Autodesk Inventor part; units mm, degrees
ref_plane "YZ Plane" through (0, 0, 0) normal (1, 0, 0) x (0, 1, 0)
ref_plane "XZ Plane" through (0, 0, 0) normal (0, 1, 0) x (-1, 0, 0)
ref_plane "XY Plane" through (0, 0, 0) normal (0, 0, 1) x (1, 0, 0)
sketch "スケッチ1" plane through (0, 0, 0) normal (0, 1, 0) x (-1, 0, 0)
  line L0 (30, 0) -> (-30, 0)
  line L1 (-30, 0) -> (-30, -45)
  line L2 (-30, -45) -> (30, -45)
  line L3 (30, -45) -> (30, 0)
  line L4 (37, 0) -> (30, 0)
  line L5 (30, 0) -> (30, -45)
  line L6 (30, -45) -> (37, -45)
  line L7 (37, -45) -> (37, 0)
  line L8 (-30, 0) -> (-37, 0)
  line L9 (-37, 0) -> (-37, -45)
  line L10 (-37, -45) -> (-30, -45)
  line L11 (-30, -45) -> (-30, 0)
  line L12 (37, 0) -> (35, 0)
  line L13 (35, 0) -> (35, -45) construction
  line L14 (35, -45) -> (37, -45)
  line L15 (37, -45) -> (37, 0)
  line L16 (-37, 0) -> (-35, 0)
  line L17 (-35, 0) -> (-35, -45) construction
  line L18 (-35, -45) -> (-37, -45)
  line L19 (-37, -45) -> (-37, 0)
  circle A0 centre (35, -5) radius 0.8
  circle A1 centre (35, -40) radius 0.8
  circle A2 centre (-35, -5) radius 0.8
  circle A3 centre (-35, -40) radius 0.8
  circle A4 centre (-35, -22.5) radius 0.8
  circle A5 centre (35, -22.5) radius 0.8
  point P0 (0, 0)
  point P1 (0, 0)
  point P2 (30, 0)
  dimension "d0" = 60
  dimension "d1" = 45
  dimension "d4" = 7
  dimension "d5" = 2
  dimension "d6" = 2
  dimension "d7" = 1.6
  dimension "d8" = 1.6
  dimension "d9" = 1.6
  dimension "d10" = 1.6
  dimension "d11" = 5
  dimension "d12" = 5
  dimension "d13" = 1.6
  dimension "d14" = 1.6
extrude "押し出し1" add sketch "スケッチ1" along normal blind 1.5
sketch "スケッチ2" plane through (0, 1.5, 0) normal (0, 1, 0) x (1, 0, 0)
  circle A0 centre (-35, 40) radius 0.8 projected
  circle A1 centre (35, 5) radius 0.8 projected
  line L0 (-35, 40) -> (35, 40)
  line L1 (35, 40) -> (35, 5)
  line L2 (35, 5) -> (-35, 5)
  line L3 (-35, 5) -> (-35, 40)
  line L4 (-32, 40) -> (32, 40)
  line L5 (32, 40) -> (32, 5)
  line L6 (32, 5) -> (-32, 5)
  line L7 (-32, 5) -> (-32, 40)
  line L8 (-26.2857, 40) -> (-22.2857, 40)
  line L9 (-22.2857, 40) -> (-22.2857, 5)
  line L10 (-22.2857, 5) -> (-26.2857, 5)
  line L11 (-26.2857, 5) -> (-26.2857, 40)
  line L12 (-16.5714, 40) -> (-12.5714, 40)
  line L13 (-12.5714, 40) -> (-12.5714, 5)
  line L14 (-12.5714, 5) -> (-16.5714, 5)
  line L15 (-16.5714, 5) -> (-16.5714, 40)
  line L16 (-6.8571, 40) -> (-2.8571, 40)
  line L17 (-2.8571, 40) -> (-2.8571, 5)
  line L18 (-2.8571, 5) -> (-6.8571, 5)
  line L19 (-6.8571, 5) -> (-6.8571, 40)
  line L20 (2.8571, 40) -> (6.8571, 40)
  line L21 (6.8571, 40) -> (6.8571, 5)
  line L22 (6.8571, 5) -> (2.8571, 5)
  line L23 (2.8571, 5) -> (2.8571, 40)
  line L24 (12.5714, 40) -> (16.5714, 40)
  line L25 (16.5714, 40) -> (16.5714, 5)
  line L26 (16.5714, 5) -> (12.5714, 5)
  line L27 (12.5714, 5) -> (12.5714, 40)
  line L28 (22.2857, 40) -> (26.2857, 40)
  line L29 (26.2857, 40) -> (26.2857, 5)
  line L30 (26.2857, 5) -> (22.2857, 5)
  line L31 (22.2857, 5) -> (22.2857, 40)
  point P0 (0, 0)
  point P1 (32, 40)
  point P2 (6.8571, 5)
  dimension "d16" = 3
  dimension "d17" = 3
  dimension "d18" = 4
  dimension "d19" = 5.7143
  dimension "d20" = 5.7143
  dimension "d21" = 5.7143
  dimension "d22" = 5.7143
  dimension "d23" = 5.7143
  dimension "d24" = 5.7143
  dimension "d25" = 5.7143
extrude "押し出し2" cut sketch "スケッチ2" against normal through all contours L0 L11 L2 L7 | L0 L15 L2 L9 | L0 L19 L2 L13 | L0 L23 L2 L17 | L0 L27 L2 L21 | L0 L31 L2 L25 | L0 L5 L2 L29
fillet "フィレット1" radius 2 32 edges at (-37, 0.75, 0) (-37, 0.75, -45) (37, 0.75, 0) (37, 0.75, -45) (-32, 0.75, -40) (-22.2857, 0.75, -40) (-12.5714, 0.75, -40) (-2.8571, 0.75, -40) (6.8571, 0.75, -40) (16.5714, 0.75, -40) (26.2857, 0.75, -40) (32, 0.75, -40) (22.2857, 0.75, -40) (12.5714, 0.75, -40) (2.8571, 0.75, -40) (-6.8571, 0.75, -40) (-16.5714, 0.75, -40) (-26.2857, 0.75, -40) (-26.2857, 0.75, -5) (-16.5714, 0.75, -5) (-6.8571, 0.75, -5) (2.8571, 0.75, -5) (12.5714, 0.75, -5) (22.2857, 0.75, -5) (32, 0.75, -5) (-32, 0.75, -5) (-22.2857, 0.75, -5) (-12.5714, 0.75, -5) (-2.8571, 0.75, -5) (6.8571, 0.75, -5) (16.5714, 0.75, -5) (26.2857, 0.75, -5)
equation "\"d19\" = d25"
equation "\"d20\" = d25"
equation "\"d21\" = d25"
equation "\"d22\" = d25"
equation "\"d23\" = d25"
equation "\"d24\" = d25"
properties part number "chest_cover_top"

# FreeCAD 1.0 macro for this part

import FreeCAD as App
import Part
import Sketcher


def edges_at(feature, points):
    """Names of the edges that pass closest to the given points."""
    edges = feature.Shape.Edges
    near = lambda p: min(range(len(edges)), key=lambda i: edges[i].distToShape(Part.Vertex(*p))[0])
    return sorted({f"Edge{near(p) + 1}" for p in points})

doc = App.newDocument("Part")
body = doc.addObject("PartDesign::Body", "Body")

# Sketch on XZ plane
sketch1 = body.newObject("Sketcher::SketchObject", "Sketch")
sketch1.AttachmentSupport = (doc.getObject("XZ_Plane"), [""])
sketch1.MapMode = "FlatFace"
sketch1.addGeometry([
    Part.LineSegment(App.Vector(-37, -45, 0), App.Vector(-37, 0, 0)),  # 0
    Part.LineSegment(App.Vector(-37, 0, 0), App.Vector(37, 0, 0)),  # 1
    Part.LineSegment(App.Vector(37, 0, 0), App.Vector(37, -45, 0)),  # 2
    Part.LineSegment(App.Vector(37, -45, 0), App.Vector(-37, -45, 0)),  # 3
    Part.Circle(App.Vector(-35, -5, 0), App.Vector(0, 0, 1), 0.8),  # 4
    Part.Circle(App.Vector(-35, -40, 0), App.Vector(0, 0, 1), 0.8),  # 5
    Part.Circle(App.Vector(-35, -22.5, 0), App.Vector(0, 0, 1), 0.8),  # 6
    Part.Circle(App.Vector(35, -5, 0), App.Vector(0, 0, 1), 0.8),  # 7
    Part.Circle(App.Vector(35, -40, 0), App.Vector(0, 0, 1), 0.8),  # 8
    Part.Circle(App.Vector(35, -22.5, 0), App.Vector(0, 0, 1), 0.8),  # 9
], False)
sketch1.addConstraint([
    Sketcher.Constraint("Coincident", 0, 2, 1, 1),
    Sketcher.Constraint("Coincident", 1, 2, 2, 1),
    Sketcher.Constraint("Coincident", 2, 2, 3, 1),
    Sketcher.Constraint("Coincident", 3, 2, 0, 1),
    Sketcher.Constraint("Vertical", 0),
    Sketcher.Constraint("Horizontal", 1),
    Sketcher.Constraint("Vertical", 2),
    Sketcher.Constraint("Horizontal", 3),
    Sketcher.Constraint("Equal", 4, 5),
    Sketcher.Constraint("Equal", 5, 6),
    Sketcher.Constraint("Equal", 6, 7),
    Sketcher.Constraint("Equal", 7, 8),
    Sketcher.Constraint("Equal", 8, 9),
    Sketcher.Constraint("Symmetric", 0, 2, 1, 2, -1, 1),
    Sketcher.Constraint("Symmetric", 4, 3, 7, 3, -2),
    Sketcher.Constraint("Symmetric", 5, 3, 8, 3, -2),
    Sketcher.Constraint("Symmetric", 6, 3, 9, 3, -2),
    Sketcher.Constraint("Vertical", 4, 3, 5, 3),
    Sketcher.Constraint("Vertical", 5, 3, 6, 3),
    Sketcher.Constraint("Diameter", 4, 1.6),
    Sketcher.Constraint("DistanceY", 0, 1, 0, 2, 45.0),
    Sketcher.Constraint("DistanceY", 4, 3, -1, 1, 5.0),
    Sketcher.Constraint("DistanceX", 0, 2, 4, 3, 2.0),
    Sketcher.Constraint("DistanceY", 2, 2, 8, 3, 5.0),
    Sketcher.Constraint("DistanceX", 1, 1, 1, 2, 74.0),
    Sketcher.Constraint("DistanceY", 6, 3, -1, 1, 22.5),
])
pad1 = body.newObject("PartDesign::Pad", "Pad")
pad1.Profile = sketch1
pad1.Length = 1.5
pad1.Reversed = True

# Sketch on XZ plane
sketch2 = body.newObject("Sketcher::SketchObject", "Sketch001")
sketch2.AttachmentSupport = (doc.getObject("XZ_Plane"), [""])
sketch2.MapMode = "FlatFace"
sketch2.AttachmentOffset = App.Placement(App.Vector(0, 0, -1.5), App.Rotation())
sketch2.addGeometry([
    Part.LineSegment(App.Vector(-26.2857, -40, 0), App.Vector(-32, -40, 0)),  # 0
    Part.LineSegment(App.Vector(-32, -40, 0), App.Vector(-32, -5, 0)),  # 1
    Part.LineSegment(App.Vector(-32, -5, 0), App.Vector(-26.2857, -5, 0)),  # 2
    Part.LineSegment(App.Vector(-26.2857, -5, 0), App.Vector(-26.2857, -40, 0)),  # 3
    Part.LineSegment(App.Vector(-16.5714, -40, 0), App.Vector(-22.2857, -40, 0)),  # 4
    Part.LineSegment(App.Vector(-22.2857, -40, 0), App.Vector(-22.2857, -5, 0)),  # 5
    Part.LineSegment(App.Vector(-22.2857, -5, 0), App.Vector(-16.5714, -5, 0)),  # 6
    Part.LineSegment(App.Vector(-16.5714, -5, 0), App.Vector(-16.5714, -40, 0)),  # 7
    Part.LineSegment(App.Vector(-6.8571, -40, 0), App.Vector(-12.5714, -40, 0)),  # 8
    Part.LineSegment(App.Vector(-12.5714, -40, 0), App.Vector(-12.5714, -5, 0)),  # 9
    Part.LineSegment(App.Vector(-12.5714, -5, 0), App.Vector(-6.8571, -5, 0)),  # 10
    Part.LineSegment(App.Vector(-6.8571, -5, 0), App.Vector(-6.8571, -40, 0)),  # 11
    Part.LineSegment(App.Vector(2.8571, -40, 0), App.Vector(-2.8571, -40, 0)),  # 12
    Part.LineSegment(App.Vector(-2.8571, -40, 0), App.Vector(-2.8571, -5, 0)),  # 13
    Part.LineSegment(App.Vector(-2.8571, -5, 0), App.Vector(2.8571, -5, 0)),  # 14
    Part.LineSegment(App.Vector(2.8571, -5, 0), App.Vector(2.8571, -40, 0)),  # 15
    Part.LineSegment(App.Vector(12.5714, -40, 0), App.Vector(6.8571, -40, 0)),  # 16
    Part.LineSegment(App.Vector(6.8571, -40, 0), App.Vector(6.8571, -5, 0)),  # 17
    Part.LineSegment(App.Vector(6.8571, -5, 0), App.Vector(12.5714, -5, 0)),  # 18
    Part.LineSegment(App.Vector(12.5714, -5, 0), App.Vector(12.5714, -40, 0)),  # 19
    Part.LineSegment(App.Vector(22.2857, -40, 0), App.Vector(16.5714, -40, 0)),  # 20
    Part.LineSegment(App.Vector(16.5714, -40, 0), App.Vector(16.5714, -5, 0)),  # 21
    Part.LineSegment(App.Vector(16.5714, -5, 0), App.Vector(22.2857, -5, 0)),  # 22
    Part.LineSegment(App.Vector(22.2857, -5, 0), App.Vector(22.2857, -40, 0)),  # 23
    Part.LineSegment(App.Vector(32, -40, 0), App.Vector(26.2857, -40, 0)),  # 24
    Part.LineSegment(App.Vector(26.2857, -40, 0), App.Vector(26.2857, -5, 0)),  # 25
    Part.LineSegment(App.Vector(26.2857, -5, 0), App.Vector(32, -5, 0)),  # 26
    Part.LineSegment(App.Vector(32, -5, 0), App.Vector(32, -40, 0)),  # 27
], False)
sketch2.addConstraint([
    Sketcher.Constraint("Coincident", 0, 2, 1, 1),
    Sketcher.Constraint("Coincident", 1, 2, 2, 1),
    Sketcher.Constraint("Coincident", 2, 2, 3, 1),
    Sketcher.Constraint("Coincident", 3, 2, 0, 1),
    Sketcher.Constraint("Coincident", 4, 2, 5, 1),
    Sketcher.Constraint("Coincident", 5, 2, 6, 1),
    Sketcher.Constraint("Coincident", 6, 2, 7, 1),
    Sketcher.Constraint("Coincident", 7, 2, 4, 1),
    Sketcher.Constraint("Coincident", 8, 2, 9, 1),
    Sketcher.Constraint("Coincident", 9, 2, 10, 1),
    Sketcher.Constraint("Coincident", 10, 2, 11, 1),
    Sketcher.Constraint("Coincident", 11, 2, 8, 1),
    Sketcher.Constraint("Coincident", 12, 2, 13, 1),
    Sketcher.Constraint("Coincident", 13, 2, 14, 1),
    Sketcher.Constraint("Coincident", 14, 2, 15, 1),
    Sketcher.Constraint("Coincident", 15, 2, 12, 1),
    Sketcher.Constraint("Coincident", 16, 2, 17, 1),
    Sketcher.Constraint("Coincident", 17, 2, 18, 1),
    Sketcher.Constraint("Coincident", 18, 2, 19, 1),
    Sketcher.Constraint("Coincident", 19, 2, 16, 1),
    Sketcher.Constraint("Coincident", 20, 2, 21, 1),
    Sketcher.Constraint("Coincident", 21, 2, 22, 1),
    Sketcher.Constraint("Coincident", 22, 2, 23, 1),
    Sketcher.Constraint("Coincident", 23, 2, 20, 1),
    Sketcher.Constraint("Coincident", 24, 2, 25, 1),
    Sketcher.Constraint("Coincident", 25, 2, 26, 1),
    Sketcher.Constraint("Coincident", 26, 2, 27, 1),
    Sketcher.Constraint("Coincident", 27, 2, 24, 1),
    Sketcher.Constraint("Horizontal", 0),
    Sketcher.Constraint("Vertical", 1),
    Sketcher.Constraint("Horizontal", 2),
    Sketcher.Constraint("Vertical", 3),
    Sketcher.Constraint("Horizontal", 4),
    Sketcher.Constraint("Vertical", 5),
    Sketcher.Constraint("Horizontal", 6),
    Sketcher.Constraint("Vertical", 7),
    Sketcher.Constraint("Horizontal", 8),
    Sketcher.Constraint("Vertical", 9),
    Sketcher.Constraint("Horizontal", 10),
    Sketcher.Constraint("Vertical", 11),
    Sketcher.Constraint("Horizontal", 12),
    Sketcher.Constraint("Vertical", 13),
    Sketcher.Constraint("Horizontal", 14),
    Sketcher.Constraint("Vertical", 15),
    Sketcher.Constraint("Horizontal", 16),
    Sketcher.Constraint("Vertical", 17),
    Sketcher.Constraint("Horizontal", 18),
    Sketcher.Constraint("Vertical", 19),
    Sketcher.Constraint("Horizontal", 20),
    Sketcher.Constraint("Vertical", 21),
    Sketcher.Constraint("Horizontal", 22),
    Sketcher.Constraint("Vertical", 23),
    Sketcher.Constraint("Horizontal", 24),
    Sketcher.Constraint("Vertical", 25),
    Sketcher.Constraint("Horizontal", 26),
    Sketcher.Constraint("Vertical", 27),
    Sketcher.Constraint("Symmetric", 11, 2, 16, 2, -2),
    Sketcher.Constraint("Symmetric", 9, 2, 18, 2, -2),
    Sketcher.Constraint("Symmetric", 7, 2, 20, 2, -2),
    Sketcher.Constraint("Symmetric", 5, 2, 22, 2, -2),
    Sketcher.Constraint("Symmetric", 3, 2, 24, 2, -2),
    Sketcher.Constraint("Symmetric", 1, 2, 26, 2, -2),
    Sketcher.Constraint("Horizontal", 3, 2, 4, 2),
    Sketcher.Constraint("Horizontal", 2, 2, 5, 2),
    Sketcher.Constraint("Horizontal", 7, 2, 8, 2),
    Sketcher.Constraint("Horizontal", 6, 2, 9, 2),
    Sketcher.Constraint("Horizontal", 11, 2, 12, 2),
    Sketcher.Constraint("Horizontal", 10, 2, 13, 2),
    Sketcher.Constraint("Equal", 2, 4),
    Sketcher.Constraint("Equal", 6, 8),
    Sketcher.Constraint("Equal", 10, 12),
    Sketcher.Constraint("DistanceX", 3, 2, 4, 2, 4.0),
    Sketcher.Constraint("DistanceX", 7, 2, 8, 2, 4.0),
    Sketcher.Constraint("DistanceX", 11, 2, 12, 2, 4.0),
    Sketcher.Constraint("DistanceX", 15, 2, 16, 2, 4.0),
    Sketcher.Constraint("DistanceY", 1, 1, 1, 2, 35.0),
    Sketcher.Constraint("DistanceX", 0, 2, 0, 1, 5.7143),
    Sketcher.Constraint("DistanceY", 0, 2, -1, 1, 40.0),
])
pocket1 = body.newObject("PartDesign::Pocket", "Pocket")
pocket1.Profile = sketch2
pocket1.Type = "ThroughAll"
pocket1.Reversed = True
doc.recompute()

fillet = body.newObject("PartDesign::Fillet", "Fillet")
fillet.Base = (pocket1, edges_at(pocket1, [
    (-37, 0.75, 0),
    (-37, 0.75, -45),
    (37, 0.75, 0),
    (37, 0.75, -45),
    (-32, 0.75, -40),
    (-22.286, 0.75, -40),
    (-12.571, 0.75, -40),
    (-2.857, 0.75, -40),
    (6.857, 0.75, -40),
    (16.571, 0.75, -40),
    (26.286, 0.75, -40),
    (32, 0.75, -40),
    (22.286, 0.75, -40),
    (12.571, 0.75, -40),
    (2.857, 0.75, -40),
    (-6.857, 0.75, -40),
    (-16.571, 0.75, -40),
    (-26.286, 0.75, -40),
    (-26.286, 0.75, -5),
    (-16.571, 0.75, -5),
    (-6.857, 0.75, -5),
    (2.857, 0.75, -5),
    (12.571, 0.75, -5),
    (22.286, 0.75, -5),
    (32, 0.75, -5),
    (-32, 0.75, -5),
    (-22.286, 0.75, -5),
    (-12.571, 0.75, -5),
    (-2.857, 0.75, -5),
    (6.857, 0.75, -5),
    (16.571, 0.75, -5),
    (26.286, 0.75, -5),
]))
fillet.Radius = 2

doc.recompute()
